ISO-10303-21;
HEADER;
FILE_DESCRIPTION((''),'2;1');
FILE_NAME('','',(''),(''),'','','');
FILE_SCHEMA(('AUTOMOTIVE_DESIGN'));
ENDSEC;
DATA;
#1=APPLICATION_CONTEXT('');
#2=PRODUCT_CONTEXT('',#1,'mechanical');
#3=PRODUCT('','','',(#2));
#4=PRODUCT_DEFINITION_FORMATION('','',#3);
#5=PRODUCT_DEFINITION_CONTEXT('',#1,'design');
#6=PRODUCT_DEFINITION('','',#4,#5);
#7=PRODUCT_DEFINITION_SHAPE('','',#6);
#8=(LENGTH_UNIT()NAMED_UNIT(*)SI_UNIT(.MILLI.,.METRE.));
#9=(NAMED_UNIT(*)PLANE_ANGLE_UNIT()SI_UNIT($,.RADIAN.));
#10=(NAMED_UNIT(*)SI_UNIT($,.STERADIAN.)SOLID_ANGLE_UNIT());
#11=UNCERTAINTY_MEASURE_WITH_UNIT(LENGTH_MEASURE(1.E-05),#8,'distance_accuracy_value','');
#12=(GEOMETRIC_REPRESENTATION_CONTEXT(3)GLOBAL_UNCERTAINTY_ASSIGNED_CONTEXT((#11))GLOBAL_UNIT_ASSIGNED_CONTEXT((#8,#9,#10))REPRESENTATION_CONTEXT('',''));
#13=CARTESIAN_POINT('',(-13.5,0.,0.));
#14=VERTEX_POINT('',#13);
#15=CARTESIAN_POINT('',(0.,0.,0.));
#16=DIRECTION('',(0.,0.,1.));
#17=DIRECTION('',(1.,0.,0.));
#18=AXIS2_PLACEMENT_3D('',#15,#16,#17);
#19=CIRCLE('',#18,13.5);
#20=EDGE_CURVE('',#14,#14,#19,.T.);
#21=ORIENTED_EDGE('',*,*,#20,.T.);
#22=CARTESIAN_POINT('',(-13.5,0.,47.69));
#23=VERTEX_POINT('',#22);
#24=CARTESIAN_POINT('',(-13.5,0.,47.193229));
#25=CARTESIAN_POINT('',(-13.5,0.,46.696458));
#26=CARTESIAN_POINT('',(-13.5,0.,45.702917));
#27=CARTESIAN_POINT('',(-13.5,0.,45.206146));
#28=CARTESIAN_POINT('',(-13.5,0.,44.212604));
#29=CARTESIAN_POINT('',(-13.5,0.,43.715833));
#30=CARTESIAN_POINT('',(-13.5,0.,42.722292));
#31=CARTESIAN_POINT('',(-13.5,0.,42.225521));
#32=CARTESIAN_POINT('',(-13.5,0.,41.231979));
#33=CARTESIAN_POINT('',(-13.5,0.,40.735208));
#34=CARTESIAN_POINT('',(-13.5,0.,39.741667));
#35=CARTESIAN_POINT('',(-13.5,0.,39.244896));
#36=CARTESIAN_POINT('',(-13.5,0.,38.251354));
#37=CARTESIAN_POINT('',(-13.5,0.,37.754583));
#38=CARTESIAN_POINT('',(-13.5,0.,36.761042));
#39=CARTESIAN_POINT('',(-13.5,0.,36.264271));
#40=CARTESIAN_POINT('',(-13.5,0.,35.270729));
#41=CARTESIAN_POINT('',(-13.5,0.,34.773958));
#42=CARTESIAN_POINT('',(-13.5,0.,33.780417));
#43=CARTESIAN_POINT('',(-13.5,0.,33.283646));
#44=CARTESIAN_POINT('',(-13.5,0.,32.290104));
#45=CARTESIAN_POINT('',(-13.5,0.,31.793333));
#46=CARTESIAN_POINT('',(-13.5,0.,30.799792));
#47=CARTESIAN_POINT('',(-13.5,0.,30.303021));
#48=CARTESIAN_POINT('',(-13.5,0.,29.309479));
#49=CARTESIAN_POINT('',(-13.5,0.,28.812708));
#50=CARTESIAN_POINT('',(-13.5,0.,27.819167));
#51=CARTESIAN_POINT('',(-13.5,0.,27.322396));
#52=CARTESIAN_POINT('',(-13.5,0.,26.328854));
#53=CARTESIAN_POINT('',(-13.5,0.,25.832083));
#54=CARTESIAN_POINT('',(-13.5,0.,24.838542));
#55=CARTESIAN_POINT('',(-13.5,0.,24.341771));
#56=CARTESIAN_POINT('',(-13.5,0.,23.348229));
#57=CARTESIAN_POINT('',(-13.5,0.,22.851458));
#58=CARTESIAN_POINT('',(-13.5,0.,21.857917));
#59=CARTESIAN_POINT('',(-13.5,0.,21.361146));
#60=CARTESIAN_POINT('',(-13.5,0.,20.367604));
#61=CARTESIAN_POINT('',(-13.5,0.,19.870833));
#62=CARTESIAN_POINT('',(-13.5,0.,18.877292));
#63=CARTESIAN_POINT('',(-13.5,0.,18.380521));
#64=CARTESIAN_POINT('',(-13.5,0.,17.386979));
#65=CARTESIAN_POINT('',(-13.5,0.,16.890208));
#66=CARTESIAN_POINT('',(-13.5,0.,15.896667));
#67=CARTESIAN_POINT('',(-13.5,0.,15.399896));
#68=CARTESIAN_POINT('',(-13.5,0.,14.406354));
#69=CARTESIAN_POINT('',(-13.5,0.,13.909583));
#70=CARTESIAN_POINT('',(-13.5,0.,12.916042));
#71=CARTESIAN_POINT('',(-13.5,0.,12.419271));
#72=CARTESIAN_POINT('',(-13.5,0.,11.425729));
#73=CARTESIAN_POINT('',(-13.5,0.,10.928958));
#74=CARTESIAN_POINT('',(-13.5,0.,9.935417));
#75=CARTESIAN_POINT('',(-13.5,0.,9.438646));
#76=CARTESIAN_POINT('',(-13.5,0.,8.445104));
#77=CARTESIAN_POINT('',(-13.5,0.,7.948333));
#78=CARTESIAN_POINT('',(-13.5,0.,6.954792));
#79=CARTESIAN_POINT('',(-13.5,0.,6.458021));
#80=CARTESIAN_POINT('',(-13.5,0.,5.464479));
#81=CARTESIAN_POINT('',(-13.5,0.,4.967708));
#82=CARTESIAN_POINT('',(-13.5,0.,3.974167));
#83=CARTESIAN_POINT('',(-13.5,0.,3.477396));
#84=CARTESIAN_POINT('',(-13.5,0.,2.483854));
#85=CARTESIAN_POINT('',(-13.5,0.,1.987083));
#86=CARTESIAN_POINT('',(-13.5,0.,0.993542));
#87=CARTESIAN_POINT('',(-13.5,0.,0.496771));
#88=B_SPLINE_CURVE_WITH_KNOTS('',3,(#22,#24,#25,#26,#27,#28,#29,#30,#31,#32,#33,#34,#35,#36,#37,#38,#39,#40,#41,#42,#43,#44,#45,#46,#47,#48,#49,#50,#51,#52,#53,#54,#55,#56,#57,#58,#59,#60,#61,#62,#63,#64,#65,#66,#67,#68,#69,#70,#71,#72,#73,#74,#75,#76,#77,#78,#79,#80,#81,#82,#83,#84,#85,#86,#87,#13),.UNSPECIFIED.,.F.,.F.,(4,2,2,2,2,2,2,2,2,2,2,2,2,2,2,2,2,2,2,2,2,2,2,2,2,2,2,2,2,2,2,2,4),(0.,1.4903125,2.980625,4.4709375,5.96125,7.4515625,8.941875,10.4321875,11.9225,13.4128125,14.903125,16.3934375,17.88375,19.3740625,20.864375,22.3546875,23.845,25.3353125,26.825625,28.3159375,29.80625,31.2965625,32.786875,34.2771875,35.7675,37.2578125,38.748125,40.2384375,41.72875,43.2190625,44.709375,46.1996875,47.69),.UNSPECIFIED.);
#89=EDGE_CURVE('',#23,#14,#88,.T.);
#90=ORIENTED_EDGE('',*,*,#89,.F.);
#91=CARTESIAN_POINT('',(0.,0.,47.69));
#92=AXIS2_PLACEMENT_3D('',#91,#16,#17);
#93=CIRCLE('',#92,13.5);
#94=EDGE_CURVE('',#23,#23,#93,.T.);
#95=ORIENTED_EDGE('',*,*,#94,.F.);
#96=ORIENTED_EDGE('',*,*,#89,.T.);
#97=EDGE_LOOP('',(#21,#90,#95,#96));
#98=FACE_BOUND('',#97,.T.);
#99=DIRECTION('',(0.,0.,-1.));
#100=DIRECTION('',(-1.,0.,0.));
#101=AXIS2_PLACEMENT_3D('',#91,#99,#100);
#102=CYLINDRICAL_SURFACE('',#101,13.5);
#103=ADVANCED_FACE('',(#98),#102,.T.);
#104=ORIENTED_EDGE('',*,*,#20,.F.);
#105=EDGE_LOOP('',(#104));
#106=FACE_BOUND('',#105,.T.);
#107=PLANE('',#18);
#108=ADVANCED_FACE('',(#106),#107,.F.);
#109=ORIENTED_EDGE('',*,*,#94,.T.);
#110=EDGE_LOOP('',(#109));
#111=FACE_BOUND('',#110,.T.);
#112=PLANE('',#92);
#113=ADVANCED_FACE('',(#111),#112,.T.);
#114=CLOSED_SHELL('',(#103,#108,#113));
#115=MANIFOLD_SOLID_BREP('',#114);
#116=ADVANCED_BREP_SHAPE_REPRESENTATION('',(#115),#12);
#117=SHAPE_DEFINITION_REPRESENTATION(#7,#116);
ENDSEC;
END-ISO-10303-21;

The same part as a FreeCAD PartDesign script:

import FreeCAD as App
import Part
import Sketcher
Q = App.Units.Quantity

doc = App.newDocument("Part")
params = doc.addObject("Spreadsheet::Sheet", "Params")
for row, (alias, value) in enumerate([
    ("sketch1_diameter", "27 mm"),
    ("pad1_length", "47.69 mm"),
], start=1):
    params.set(f"A{row}", alias)
    params.set(f"B{row}", "=" + value)
    params.setAlias(f"B{row}", alias)

body = doc.addObject("PartDesign::Body", "Body")

# Sketch on XY plane
sketch1 = body.newObject("Sketcher::SketchObject", "Sketch")
sketch1.AttachmentSupport = (doc.getObject("XY_Plane"), [""])
sketch1.MapMode = "FlatFace"
sketch1.addGeometry(Part.Circle(App.Vector(0, 0, 0), App.Vector(0, 0, 1), 13.5), False)
sketch1.addConstraint(Sketcher.Constraint("Coincident", 0, 3, -1, 1))
sketch1.addConstraint(Sketcher.Constraint("Diameter", 0, Q("27 mm")))
sketch1.setExpression("Constraints[1]", "Params.sketch1_diameter")
pad1 = body.newObject("PartDesign::Pad", "Pad")
pad1.Profile = sketch1
pad1.setExpression("Length", "Params.pad1_length")

doc.recompute()
